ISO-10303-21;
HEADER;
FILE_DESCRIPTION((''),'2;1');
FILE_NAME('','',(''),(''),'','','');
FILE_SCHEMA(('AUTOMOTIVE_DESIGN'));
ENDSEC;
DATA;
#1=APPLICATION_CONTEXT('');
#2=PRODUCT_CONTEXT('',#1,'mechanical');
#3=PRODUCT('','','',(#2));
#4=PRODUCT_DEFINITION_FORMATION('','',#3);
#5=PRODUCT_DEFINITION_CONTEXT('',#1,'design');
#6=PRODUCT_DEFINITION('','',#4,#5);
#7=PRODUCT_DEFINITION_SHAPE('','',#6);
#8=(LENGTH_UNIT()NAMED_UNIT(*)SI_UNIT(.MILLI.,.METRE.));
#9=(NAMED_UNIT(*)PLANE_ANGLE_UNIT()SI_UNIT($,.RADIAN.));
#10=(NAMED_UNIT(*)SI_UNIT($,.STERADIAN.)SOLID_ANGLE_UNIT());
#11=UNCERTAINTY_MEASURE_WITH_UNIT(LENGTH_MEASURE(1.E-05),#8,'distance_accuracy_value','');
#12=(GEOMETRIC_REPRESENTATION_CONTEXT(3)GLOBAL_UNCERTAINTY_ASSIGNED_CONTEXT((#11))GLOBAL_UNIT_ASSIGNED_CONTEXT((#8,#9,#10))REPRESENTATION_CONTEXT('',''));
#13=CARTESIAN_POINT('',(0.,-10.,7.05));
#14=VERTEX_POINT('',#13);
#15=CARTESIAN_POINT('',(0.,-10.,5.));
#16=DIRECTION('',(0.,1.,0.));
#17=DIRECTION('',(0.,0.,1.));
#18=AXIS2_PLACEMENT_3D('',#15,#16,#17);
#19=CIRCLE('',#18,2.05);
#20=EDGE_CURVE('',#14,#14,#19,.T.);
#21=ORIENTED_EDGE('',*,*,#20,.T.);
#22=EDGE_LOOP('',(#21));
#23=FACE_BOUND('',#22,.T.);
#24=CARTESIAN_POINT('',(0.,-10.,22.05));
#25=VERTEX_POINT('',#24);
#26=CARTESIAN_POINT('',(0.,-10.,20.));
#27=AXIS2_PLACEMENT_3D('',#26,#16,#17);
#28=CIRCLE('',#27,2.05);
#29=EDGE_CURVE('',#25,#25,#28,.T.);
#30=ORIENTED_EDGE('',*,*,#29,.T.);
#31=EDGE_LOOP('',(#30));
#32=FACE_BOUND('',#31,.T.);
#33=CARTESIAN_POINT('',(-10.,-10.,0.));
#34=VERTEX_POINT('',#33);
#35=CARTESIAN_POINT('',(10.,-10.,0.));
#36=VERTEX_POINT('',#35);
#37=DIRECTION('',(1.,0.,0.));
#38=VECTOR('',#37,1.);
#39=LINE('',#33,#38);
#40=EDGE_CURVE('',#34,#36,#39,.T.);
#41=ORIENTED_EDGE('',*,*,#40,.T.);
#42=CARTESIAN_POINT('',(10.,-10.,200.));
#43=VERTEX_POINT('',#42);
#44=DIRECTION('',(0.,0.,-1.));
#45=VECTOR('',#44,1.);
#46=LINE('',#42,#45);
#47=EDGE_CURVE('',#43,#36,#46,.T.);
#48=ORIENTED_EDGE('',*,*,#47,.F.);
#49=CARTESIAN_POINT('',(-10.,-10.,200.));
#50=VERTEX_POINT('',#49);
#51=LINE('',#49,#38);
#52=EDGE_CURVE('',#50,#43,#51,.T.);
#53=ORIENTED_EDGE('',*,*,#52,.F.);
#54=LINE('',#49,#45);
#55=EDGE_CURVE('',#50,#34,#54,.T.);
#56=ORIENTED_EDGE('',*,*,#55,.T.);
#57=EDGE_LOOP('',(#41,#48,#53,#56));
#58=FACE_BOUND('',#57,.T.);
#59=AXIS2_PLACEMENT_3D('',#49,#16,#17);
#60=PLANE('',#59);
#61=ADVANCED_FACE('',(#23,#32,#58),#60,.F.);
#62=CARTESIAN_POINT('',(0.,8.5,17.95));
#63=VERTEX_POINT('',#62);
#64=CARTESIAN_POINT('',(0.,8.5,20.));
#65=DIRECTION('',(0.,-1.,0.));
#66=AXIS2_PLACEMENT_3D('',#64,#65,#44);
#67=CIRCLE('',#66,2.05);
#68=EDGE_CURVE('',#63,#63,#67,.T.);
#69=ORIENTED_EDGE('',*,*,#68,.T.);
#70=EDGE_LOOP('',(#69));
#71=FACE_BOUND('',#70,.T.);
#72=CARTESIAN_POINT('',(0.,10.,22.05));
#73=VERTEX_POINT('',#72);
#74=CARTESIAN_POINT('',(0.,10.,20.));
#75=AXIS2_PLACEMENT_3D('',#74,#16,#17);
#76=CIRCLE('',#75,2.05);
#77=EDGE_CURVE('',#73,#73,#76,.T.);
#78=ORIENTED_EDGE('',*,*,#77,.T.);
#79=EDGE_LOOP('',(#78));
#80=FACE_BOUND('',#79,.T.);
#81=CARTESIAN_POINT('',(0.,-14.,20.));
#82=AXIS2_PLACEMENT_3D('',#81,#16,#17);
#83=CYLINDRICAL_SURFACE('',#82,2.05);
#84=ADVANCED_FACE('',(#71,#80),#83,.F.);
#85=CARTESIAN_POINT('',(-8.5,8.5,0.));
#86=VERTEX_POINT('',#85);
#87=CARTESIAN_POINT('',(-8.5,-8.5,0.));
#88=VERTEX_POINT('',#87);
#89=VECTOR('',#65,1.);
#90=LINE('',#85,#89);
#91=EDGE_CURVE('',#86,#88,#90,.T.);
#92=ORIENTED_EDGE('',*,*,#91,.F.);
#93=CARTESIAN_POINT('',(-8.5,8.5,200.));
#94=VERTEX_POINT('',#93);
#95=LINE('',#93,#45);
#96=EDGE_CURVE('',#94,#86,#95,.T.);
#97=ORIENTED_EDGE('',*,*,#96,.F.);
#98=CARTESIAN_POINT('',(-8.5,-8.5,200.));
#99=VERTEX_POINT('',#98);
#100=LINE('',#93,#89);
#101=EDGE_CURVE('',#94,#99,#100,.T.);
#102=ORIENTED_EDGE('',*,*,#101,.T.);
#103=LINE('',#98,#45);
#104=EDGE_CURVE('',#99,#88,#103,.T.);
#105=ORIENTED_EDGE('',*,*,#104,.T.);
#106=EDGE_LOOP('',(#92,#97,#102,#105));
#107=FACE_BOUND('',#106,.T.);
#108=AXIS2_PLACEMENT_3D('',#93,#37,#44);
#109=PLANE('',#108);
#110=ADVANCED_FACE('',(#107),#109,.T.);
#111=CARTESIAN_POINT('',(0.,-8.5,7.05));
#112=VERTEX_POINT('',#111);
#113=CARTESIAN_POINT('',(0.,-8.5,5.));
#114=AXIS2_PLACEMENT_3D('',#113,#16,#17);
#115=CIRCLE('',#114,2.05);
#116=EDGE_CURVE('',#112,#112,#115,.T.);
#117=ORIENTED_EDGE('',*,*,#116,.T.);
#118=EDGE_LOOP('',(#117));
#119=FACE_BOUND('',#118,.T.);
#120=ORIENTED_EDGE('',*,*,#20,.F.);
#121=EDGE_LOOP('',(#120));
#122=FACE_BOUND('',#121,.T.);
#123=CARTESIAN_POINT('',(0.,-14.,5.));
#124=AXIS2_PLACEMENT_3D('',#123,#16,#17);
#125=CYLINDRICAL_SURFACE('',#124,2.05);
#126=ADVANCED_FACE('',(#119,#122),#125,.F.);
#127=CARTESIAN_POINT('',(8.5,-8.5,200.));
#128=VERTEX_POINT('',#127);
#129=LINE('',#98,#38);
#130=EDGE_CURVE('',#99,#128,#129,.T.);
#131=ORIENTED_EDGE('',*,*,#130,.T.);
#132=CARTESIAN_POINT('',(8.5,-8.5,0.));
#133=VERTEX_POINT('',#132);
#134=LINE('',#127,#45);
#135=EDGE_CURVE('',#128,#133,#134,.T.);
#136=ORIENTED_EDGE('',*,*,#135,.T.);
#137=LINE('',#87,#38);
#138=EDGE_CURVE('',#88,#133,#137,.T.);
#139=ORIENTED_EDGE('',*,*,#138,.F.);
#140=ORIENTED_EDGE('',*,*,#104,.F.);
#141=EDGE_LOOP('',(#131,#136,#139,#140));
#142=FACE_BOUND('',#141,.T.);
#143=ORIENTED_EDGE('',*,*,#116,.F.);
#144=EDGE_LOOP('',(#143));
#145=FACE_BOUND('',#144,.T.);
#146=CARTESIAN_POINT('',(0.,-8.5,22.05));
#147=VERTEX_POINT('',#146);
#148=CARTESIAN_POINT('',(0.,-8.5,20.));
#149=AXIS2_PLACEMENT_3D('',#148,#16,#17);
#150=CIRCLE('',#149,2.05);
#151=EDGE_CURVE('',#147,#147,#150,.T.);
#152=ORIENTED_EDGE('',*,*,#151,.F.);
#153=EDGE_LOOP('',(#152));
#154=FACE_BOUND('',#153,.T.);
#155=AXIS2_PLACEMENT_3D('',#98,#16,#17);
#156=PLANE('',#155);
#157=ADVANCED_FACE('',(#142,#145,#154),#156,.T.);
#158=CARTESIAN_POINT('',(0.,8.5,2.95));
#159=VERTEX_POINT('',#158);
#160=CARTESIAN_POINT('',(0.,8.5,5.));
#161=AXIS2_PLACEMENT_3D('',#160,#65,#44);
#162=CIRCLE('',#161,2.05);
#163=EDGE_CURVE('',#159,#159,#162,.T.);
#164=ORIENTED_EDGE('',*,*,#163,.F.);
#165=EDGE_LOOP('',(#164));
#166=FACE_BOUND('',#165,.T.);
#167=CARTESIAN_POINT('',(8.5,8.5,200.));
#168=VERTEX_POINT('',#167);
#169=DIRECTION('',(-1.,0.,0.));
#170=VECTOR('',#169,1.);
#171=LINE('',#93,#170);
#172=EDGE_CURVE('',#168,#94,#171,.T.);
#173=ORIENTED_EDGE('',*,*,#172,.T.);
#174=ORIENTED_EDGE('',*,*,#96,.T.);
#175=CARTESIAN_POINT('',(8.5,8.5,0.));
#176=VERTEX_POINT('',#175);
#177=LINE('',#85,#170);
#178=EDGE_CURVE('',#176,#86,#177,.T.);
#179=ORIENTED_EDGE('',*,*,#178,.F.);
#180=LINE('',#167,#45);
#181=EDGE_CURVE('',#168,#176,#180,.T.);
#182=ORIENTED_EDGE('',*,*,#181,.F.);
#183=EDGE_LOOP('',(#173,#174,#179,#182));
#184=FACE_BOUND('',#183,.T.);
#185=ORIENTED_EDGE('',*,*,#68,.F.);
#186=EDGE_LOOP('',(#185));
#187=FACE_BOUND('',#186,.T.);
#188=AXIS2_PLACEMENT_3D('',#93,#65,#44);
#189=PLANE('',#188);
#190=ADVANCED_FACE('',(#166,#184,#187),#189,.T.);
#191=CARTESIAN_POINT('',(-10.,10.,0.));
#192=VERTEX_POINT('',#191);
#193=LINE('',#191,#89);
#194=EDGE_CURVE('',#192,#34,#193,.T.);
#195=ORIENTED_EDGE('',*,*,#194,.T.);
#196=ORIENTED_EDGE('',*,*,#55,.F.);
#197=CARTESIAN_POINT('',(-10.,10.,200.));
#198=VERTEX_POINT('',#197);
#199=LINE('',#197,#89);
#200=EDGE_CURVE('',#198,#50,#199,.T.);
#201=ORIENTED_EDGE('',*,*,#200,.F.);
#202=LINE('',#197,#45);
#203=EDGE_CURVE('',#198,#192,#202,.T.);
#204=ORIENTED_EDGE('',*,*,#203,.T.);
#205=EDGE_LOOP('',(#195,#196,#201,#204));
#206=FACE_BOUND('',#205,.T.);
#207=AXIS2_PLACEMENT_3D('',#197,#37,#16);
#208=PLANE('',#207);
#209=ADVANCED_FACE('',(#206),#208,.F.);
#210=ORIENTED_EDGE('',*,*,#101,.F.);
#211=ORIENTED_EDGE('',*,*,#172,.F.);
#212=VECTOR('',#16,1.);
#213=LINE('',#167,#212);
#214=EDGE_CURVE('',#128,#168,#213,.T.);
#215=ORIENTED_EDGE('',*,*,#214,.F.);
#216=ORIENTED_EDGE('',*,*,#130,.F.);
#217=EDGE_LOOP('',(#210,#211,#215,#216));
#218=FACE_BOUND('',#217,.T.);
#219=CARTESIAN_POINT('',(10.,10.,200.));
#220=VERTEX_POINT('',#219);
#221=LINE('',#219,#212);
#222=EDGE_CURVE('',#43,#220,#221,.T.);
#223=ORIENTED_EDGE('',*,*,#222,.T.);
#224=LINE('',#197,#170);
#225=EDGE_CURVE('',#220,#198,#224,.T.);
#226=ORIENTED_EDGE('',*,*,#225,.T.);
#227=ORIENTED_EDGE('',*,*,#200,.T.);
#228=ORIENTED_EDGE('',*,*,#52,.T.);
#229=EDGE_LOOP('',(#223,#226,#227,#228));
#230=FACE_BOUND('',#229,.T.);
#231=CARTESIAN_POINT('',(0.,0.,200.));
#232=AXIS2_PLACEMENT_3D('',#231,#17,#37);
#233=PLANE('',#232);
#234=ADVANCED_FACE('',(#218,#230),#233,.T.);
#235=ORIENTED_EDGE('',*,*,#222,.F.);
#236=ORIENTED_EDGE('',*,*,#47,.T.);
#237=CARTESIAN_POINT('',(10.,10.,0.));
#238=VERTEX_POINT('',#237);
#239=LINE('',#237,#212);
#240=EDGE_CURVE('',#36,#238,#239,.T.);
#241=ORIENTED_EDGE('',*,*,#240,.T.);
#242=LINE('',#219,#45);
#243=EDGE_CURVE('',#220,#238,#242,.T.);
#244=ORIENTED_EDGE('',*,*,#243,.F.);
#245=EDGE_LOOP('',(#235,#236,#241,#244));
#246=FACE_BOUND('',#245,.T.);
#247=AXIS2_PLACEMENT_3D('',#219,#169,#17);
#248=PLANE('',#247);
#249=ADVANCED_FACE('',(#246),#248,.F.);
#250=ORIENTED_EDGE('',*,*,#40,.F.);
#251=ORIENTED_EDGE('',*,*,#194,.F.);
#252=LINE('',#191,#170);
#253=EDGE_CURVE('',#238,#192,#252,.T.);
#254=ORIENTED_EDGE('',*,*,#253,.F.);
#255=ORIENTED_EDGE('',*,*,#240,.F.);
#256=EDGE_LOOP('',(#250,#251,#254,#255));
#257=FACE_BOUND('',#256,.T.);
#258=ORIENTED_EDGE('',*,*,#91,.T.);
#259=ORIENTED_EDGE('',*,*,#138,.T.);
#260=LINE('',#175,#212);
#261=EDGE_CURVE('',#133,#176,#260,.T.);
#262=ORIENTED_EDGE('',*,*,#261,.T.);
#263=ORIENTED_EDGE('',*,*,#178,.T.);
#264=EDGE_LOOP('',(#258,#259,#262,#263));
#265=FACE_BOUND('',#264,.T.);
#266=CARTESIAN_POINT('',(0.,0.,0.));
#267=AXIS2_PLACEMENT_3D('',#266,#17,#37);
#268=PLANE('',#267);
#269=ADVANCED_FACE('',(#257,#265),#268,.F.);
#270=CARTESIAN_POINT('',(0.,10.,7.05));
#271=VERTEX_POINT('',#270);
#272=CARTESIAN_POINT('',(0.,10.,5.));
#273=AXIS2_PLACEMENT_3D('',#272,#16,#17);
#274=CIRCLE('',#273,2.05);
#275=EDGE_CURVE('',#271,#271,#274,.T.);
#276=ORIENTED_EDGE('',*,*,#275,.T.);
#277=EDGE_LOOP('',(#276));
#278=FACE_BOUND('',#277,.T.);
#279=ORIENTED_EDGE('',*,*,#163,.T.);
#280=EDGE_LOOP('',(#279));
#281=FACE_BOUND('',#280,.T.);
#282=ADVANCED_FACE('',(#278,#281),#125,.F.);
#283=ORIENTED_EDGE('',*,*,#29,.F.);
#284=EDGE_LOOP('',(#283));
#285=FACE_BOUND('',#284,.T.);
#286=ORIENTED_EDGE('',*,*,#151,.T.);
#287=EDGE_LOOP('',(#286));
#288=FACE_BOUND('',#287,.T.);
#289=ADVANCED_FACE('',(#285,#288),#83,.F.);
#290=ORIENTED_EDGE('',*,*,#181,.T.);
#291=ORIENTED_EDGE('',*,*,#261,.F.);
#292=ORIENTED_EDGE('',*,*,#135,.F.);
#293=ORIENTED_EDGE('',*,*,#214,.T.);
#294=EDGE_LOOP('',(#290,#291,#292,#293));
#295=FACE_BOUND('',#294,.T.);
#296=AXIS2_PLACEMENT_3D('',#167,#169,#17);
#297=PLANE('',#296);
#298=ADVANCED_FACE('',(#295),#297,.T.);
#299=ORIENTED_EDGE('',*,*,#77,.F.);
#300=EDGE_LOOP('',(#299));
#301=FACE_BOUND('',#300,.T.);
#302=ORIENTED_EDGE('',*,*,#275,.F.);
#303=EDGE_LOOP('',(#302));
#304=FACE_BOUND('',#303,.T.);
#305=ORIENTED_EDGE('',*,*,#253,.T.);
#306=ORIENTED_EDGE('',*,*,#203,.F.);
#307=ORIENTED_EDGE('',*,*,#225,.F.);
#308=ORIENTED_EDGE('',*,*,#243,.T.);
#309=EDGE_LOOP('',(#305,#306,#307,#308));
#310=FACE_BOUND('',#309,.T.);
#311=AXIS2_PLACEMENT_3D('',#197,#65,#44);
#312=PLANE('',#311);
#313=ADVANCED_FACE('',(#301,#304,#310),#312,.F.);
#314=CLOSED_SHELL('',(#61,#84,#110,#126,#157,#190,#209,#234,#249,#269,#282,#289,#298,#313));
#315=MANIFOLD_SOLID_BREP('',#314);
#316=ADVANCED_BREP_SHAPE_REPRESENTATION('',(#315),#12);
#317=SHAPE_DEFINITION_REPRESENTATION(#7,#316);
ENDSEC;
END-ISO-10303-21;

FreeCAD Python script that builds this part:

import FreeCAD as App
import Part
import Sketcher

V = App.Vector


def add_polygon(sketch, points):
    """Adds a closed chain of lines whose ends are joined by coincident constraints."""
    first, n = sketch.GeometryCount, len(points)
    for a, b in zip(points, points[1:] + points[:1]):
        sketch.addGeometry(Part.LineSegment(App.Vector(*a, 0), App.Vector(*b, 0)), False)
    for i in range(n):
        sketch.addConstraint(Sketcher.Constraint("Coincident", first + i, 2, first + (i + 1) % n, 1))

doc = App.newDocument("Part")
body = doc.addObject("PartDesign::Body", "Body")

# Sketch on XY plane
sketch1 = doc.addObject("Sketcher::SketchObject", "Sketch")
body.addObject(sketch1)
sketch1.AttachmentSupport = (doc.XY_Plane, [""])
sketch1.MapMode = "FlatFace"
add_polygon(sketch1, [(-10, 10), (-10, -10), (10, -10), (10, 10)])  # lines 0-3
add_polygon(sketch1, [(8, -8), (-8, -8), (-8, 8), (8, 8)])  # lines 4-7
sketch1.addConstraint(Sketcher.Constraint("Vertical", 0))
sketch1.addConstraint(Sketcher.Constraint("Horizontal", 1))
sketch1.addConstraint(Sketcher.Constraint("Vertical", 2))
sketch1.addConstraint(Sketcher.Constraint("Horizontal", 3))
sketch1.addConstraint(Sketcher.Constraint("Horizontal", 4))
sketch1.addConstraint(Sketcher.Constraint("Vertical", 5))
sketch1.addConstraint(Sketcher.Constraint("Horizontal", 6))
sketch1.addConstraint(Sketcher.Constraint("Vertical", 7))
sketch1.addConstraint(Sketcher.Constraint("Symmetric", 0, 2, 2, 2, -1, 1))
sketch1.addConstraint(Sketcher.Constraint("Symmetric", 4, 2, 6, 2, -1, 1))
sketch1.addConstraint(Sketcher.Constraint("Equal", 3, 0))
sketch1.addConstraint(Sketcher.Constraint("Equal", 6, 5))
sketch1.addConstraint(Sketcher.Constraint("DistanceX", 1, 1, 1, 2, 20.0))
sketch1.addConstraint(Sketcher.Constraint("DistanceX", 4, 2, 4, 1, 17.0))
pad1 = doc.addObject("PartDesign::Pad", "Pad")
body.addObject(pad1)
pad1.Profile = sketch1
pad1.Length = 200

# Sketch on XZ plane
sketch2 = doc.addObject("Sketcher::SketchObject", "Sketch001")
body.addObject(sketch2)
sketch2.AttachmentSupport = (doc.XZ_Plane, [""])
sketch2.MapMode = "FlatFace"
sketch2.AttachmentOffset = App.Placement(V(0, 0, -10), App.Rotation())
sketch2.addGeometry(Part.Circle(V(0, 5, 0), V(0, 0, 1), 2), False)
sketch2.addGeometry(Part.Circle(V(0, 20, 0), V(0, 0, 1), 2), False)
sketch2.addConstraint(Sketcher.Constraint("Equal", 0, 1))
sketch2.addConstraint(Sketcher.Constraint("PointOnObject", 0, 3, -2))
sketch2.addConstraint(Sketcher.Constraint("PointOnObject", 1, 3, -2))
sketch2.addConstraint(Sketcher.Constraint("Diameter", 0, 4.1))
sketch2.addConstraint(Sketcher.Constraint("DistanceY", -1, 1, 0, 3, 5.0))
sketch2.addConstraint(Sketcher.Constraint("DistanceY", -1, 1, 1, 3, 20.0))
pocket1 = doc.addObject("PartDesign::Pocket", "Pocket")
body.addObject(pocket1)
pocket1.Profile = sketch2
pocket1.Length = 24
pocket1.Reversed = True

doc.recompute()
